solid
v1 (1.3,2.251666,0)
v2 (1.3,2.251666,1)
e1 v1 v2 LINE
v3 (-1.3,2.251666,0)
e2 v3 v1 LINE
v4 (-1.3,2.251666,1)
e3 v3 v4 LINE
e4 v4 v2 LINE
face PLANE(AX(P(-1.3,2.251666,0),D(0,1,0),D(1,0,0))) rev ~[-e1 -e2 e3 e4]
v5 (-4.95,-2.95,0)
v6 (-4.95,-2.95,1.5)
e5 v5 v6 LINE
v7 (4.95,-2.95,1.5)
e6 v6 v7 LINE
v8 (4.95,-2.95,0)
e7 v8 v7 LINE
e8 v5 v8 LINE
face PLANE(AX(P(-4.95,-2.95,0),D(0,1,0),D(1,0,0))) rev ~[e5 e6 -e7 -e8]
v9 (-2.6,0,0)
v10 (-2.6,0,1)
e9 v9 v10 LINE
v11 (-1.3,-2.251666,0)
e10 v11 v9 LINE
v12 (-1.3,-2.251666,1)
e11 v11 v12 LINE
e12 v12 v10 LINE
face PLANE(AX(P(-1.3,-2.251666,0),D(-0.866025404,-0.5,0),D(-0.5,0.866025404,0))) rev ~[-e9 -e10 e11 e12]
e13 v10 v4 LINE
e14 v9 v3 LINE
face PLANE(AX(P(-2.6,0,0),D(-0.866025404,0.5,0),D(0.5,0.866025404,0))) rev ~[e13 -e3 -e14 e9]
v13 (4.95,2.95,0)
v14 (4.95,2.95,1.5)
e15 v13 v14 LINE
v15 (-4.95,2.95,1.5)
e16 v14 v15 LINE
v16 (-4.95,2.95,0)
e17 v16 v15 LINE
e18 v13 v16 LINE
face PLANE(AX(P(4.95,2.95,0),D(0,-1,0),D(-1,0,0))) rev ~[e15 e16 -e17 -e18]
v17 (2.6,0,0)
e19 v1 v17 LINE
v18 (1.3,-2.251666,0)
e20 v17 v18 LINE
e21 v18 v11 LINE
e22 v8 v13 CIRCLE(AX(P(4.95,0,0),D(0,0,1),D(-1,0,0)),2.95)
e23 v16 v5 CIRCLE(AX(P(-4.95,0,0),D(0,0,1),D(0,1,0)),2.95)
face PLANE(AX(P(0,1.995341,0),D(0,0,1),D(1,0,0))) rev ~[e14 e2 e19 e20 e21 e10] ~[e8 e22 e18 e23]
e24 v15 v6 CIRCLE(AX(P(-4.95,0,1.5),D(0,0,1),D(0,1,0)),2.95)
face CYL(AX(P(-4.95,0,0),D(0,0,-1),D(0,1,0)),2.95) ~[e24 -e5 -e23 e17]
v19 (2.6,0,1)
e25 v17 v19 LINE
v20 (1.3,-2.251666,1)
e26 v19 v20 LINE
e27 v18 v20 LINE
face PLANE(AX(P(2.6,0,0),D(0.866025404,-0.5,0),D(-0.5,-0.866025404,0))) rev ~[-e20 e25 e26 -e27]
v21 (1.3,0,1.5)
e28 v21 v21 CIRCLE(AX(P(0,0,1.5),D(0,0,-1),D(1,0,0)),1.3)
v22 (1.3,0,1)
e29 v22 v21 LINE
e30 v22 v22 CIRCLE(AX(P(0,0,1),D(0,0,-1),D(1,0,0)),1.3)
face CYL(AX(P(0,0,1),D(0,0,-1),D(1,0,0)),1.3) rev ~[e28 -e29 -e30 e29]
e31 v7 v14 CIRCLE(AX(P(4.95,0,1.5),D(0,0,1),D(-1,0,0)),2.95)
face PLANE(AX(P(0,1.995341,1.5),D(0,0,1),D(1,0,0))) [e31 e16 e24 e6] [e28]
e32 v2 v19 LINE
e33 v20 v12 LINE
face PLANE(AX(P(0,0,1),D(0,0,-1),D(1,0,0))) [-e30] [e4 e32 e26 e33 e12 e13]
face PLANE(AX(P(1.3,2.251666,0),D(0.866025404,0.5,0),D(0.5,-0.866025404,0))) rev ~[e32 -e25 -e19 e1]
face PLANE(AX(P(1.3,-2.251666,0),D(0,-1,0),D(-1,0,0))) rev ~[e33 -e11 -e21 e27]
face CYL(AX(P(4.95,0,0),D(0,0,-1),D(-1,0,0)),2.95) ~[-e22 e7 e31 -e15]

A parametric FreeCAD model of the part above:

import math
import FreeCAD as App
import Part
import Sketcher

V = App.Vector
Q = App.Units.Quantity


def add_polygon(sketch, points):
    """Adds a closed chain of lines whose ends are joined by coincident constraints."""
    first, n = sketch.GeometryCount, len(points)
    for a, b in zip(points, points[1:] + points[:1]):
        sketch.addGeometry(Part.LineSegment(App.Vector(*a, 0), App.Vector(*b, 0)), False)
    for i in range(n):
        sketch.addConstraint(Sketcher.Constraint("Coincident", first + i, 2, first + (i + 1) % n, 1))

doc = App.newDocument("Part")
body = doc.addObject("PartDesign::Body", "Body")

sketch1 = doc.addObject("Sketcher::SketchObject", "Sketch")
body.addObject(sketch1)
sketch1.AttachmentSupport = (doc.XY_Plane, [""])
sketch1.MapMode = "FlatFace"
sketch1.addGeometry([
    Part.LineSegment(V(5, 3, 0), V(-5, 3, 0)),
    Part.ArcOfCircle(Part.Circle(V(-5, 0, 0), V(0, 0, 1), 3), math.radians(90), math.radians(270)),
    Part.LineSegment(V(-5, -3, 0), V(5, -3, 0)),
    Part.ArcOfCircle(Part.Circle(V(5, 0, 0), V(0, 0, 1), 3), math.radians(-90), math.radians(90)),
], False)
sketch1.addConstraint([
    Sketcher.Constraint("Tangent", 0, 2, 1, 1),
    Sketcher.Constraint("Tangent", 1, 2, 2, 1),
    Sketcher.Constraint("Tangent", 2, 2, 3, 1),
    Sketcher.Constraint("Tangent", 3, 2, 0, 1),
    Sketcher.Constraint("Horizontal", 0),
    Sketcher.Constraint("Horizontal", 2),
    Sketcher.Constraint("Symmetric", 1, 3, 3, 3, -1, 1),
    Sketcher.Constraint("Radius", 1, 2.95),
    Sketcher.Constraint("DistanceX", 0, 2, 0, 1, 9.9),
])
pad1 = doc.addObject("PartDesign::Pad", "Pad")
body.addObject(pad1)
pad1.Profile = sketch1
pad1.Length = 1.5

sketch2 = doc.addObject("Sketcher::SketchObject", "Sketch001")
body.addObject(sketch2)
sketch2.AttachmentSupport = (doc.XY_Plane, [""])
sketch2.MapMode = "FlatFace"
add_polygon(sketch2, [(1.3, 2.3), (2.6, 0), (1.3, -2.3), (-1.3, -2.3), (-2.6, 0), (-1.3, 2.3)])
sketch2.addConstraint([
    Sketcher.Constraint("Horizontal", 2),
    Sketcher.Constraint("Horizontal", 5),
    Sketcher.Constraint("Symmetric", 0, 2, 3, 2, -1, 1),
    Sketcher.Constraint("Symmetric", 1, 2, 4, 2, -1, 1),
    Sketcher.Constraint("PointOnObject", 0, 2, -1),
    Sketcher.Constraint("Parallel", 0, 3),
    Sketcher.Constraint("Vertical", 2, 2, 4, 2),
    Sketcher.Constraint("Angle", 0, Q("-60 deg")),
    Sketcher.Constraint("DistanceX", 2, 2, 2, 1, 2.6),
    Sketcher.Constraint("Distance", 0, 2.6),
])
pocket1 = doc.addObject("PartDesign::Pocket", "Pocket")
body.addObject(pocket1)
pocket1.Profile = sketch2
pocket1.Length = 1
pocket1.Reversed = True

sketch3 = doc.addObject("Sketcher::SketchObject", "Sketch002")
body.addObject(sketch3)
sketch3.AttachmentSupport = (doc.XY_Plane, [""])
sketch3.MapMode = "FlatFace"
sketch3.AttachmentOffset = App.Placement(V(0, 0, 1), App.Rotation())
sketch3.addGeometry(Part.Circle(V(0, 0, 0), V(0, 0, 1), 1.3), False)
sketch3.addConstraint([
    Sketcher.Constraint("Coincident", 0, 3, -1, 1),
    Sketcher.Constraint("Diameter", 0, 2.6),
])
pocket2 = doc.addObject("PartDesign::Pocket", "Pocket001")
body.addObject(pocket2)
pocket2.Profile = sketch3
pocket2.Length = 25
pocket2.Reversed = True

doc.recompute()
